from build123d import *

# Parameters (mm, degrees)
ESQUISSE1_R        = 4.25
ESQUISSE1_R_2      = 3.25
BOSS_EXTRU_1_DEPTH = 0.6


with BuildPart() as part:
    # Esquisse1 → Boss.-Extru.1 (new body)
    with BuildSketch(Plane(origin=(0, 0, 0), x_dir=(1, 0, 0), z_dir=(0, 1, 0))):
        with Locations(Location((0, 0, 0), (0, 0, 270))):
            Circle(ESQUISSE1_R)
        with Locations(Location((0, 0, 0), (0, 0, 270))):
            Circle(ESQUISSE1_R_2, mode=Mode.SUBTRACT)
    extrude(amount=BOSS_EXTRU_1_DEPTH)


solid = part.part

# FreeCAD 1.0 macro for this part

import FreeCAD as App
import Part
import Sketcher
from FreeCAD import Vector

doc = App.newDocument("Part")
params = doc.addObject("Spreadsheet::Sheet", "Params")
for row, (alias, value) in enumerate([
    ("sketch1_diameter", "8.5 mm"),
    ("sketch1_diameter2", "6.5 mm"),
    ("pad1_length", "0.6 mm"),
], start=1):
    params.set(f"A{row}", alias)
    params.set(f"B{row}", "=" + value)
    params.setAlias(f"B{row}", alias)

body = doc.addObject("PartDesign::Body", "Body")

sketch1 = body.newObject("Sketcher::SketchObject", "Sketch")
sketch1.AttachmentSupport = (doc.getObject("XZ_Plane"), [""])
sketch1.MapMode = "FlatFace"
sketch1.addGeometry([
    Part.Circle(Vector(0, 0, 0), Vector(0, 0, 1), 4.25),
    Part.Circle(Vector(0, 0, 0), Vector(0, 0, 1), 3.25),
], False)
sketch1.addConstraint([
    Sketcher.Constraint("Coincident", 0, 3, -1, 1),
    Sketcher.Constraint("Coincident", 1, 3, -1, 1),
    Sketcher.Constraint("Diameter", 0, 8.5),
    Sketcher.Constraint("Diameter", 1, 6.5),
])
sketch1.setExpression("Constraints[2]", "Params.sketch1_diameter")
sketch1.setExpression("Constraints[3]", "Params.sketch1_diameter2")
pad1 = body.newObject("PartDesign::Pad", "Pad")
pad1.Profile = sketch1
pad1.setExpression("Length", "Params.pad1_length")
pad1.Reversed = True

doc.recompute()
